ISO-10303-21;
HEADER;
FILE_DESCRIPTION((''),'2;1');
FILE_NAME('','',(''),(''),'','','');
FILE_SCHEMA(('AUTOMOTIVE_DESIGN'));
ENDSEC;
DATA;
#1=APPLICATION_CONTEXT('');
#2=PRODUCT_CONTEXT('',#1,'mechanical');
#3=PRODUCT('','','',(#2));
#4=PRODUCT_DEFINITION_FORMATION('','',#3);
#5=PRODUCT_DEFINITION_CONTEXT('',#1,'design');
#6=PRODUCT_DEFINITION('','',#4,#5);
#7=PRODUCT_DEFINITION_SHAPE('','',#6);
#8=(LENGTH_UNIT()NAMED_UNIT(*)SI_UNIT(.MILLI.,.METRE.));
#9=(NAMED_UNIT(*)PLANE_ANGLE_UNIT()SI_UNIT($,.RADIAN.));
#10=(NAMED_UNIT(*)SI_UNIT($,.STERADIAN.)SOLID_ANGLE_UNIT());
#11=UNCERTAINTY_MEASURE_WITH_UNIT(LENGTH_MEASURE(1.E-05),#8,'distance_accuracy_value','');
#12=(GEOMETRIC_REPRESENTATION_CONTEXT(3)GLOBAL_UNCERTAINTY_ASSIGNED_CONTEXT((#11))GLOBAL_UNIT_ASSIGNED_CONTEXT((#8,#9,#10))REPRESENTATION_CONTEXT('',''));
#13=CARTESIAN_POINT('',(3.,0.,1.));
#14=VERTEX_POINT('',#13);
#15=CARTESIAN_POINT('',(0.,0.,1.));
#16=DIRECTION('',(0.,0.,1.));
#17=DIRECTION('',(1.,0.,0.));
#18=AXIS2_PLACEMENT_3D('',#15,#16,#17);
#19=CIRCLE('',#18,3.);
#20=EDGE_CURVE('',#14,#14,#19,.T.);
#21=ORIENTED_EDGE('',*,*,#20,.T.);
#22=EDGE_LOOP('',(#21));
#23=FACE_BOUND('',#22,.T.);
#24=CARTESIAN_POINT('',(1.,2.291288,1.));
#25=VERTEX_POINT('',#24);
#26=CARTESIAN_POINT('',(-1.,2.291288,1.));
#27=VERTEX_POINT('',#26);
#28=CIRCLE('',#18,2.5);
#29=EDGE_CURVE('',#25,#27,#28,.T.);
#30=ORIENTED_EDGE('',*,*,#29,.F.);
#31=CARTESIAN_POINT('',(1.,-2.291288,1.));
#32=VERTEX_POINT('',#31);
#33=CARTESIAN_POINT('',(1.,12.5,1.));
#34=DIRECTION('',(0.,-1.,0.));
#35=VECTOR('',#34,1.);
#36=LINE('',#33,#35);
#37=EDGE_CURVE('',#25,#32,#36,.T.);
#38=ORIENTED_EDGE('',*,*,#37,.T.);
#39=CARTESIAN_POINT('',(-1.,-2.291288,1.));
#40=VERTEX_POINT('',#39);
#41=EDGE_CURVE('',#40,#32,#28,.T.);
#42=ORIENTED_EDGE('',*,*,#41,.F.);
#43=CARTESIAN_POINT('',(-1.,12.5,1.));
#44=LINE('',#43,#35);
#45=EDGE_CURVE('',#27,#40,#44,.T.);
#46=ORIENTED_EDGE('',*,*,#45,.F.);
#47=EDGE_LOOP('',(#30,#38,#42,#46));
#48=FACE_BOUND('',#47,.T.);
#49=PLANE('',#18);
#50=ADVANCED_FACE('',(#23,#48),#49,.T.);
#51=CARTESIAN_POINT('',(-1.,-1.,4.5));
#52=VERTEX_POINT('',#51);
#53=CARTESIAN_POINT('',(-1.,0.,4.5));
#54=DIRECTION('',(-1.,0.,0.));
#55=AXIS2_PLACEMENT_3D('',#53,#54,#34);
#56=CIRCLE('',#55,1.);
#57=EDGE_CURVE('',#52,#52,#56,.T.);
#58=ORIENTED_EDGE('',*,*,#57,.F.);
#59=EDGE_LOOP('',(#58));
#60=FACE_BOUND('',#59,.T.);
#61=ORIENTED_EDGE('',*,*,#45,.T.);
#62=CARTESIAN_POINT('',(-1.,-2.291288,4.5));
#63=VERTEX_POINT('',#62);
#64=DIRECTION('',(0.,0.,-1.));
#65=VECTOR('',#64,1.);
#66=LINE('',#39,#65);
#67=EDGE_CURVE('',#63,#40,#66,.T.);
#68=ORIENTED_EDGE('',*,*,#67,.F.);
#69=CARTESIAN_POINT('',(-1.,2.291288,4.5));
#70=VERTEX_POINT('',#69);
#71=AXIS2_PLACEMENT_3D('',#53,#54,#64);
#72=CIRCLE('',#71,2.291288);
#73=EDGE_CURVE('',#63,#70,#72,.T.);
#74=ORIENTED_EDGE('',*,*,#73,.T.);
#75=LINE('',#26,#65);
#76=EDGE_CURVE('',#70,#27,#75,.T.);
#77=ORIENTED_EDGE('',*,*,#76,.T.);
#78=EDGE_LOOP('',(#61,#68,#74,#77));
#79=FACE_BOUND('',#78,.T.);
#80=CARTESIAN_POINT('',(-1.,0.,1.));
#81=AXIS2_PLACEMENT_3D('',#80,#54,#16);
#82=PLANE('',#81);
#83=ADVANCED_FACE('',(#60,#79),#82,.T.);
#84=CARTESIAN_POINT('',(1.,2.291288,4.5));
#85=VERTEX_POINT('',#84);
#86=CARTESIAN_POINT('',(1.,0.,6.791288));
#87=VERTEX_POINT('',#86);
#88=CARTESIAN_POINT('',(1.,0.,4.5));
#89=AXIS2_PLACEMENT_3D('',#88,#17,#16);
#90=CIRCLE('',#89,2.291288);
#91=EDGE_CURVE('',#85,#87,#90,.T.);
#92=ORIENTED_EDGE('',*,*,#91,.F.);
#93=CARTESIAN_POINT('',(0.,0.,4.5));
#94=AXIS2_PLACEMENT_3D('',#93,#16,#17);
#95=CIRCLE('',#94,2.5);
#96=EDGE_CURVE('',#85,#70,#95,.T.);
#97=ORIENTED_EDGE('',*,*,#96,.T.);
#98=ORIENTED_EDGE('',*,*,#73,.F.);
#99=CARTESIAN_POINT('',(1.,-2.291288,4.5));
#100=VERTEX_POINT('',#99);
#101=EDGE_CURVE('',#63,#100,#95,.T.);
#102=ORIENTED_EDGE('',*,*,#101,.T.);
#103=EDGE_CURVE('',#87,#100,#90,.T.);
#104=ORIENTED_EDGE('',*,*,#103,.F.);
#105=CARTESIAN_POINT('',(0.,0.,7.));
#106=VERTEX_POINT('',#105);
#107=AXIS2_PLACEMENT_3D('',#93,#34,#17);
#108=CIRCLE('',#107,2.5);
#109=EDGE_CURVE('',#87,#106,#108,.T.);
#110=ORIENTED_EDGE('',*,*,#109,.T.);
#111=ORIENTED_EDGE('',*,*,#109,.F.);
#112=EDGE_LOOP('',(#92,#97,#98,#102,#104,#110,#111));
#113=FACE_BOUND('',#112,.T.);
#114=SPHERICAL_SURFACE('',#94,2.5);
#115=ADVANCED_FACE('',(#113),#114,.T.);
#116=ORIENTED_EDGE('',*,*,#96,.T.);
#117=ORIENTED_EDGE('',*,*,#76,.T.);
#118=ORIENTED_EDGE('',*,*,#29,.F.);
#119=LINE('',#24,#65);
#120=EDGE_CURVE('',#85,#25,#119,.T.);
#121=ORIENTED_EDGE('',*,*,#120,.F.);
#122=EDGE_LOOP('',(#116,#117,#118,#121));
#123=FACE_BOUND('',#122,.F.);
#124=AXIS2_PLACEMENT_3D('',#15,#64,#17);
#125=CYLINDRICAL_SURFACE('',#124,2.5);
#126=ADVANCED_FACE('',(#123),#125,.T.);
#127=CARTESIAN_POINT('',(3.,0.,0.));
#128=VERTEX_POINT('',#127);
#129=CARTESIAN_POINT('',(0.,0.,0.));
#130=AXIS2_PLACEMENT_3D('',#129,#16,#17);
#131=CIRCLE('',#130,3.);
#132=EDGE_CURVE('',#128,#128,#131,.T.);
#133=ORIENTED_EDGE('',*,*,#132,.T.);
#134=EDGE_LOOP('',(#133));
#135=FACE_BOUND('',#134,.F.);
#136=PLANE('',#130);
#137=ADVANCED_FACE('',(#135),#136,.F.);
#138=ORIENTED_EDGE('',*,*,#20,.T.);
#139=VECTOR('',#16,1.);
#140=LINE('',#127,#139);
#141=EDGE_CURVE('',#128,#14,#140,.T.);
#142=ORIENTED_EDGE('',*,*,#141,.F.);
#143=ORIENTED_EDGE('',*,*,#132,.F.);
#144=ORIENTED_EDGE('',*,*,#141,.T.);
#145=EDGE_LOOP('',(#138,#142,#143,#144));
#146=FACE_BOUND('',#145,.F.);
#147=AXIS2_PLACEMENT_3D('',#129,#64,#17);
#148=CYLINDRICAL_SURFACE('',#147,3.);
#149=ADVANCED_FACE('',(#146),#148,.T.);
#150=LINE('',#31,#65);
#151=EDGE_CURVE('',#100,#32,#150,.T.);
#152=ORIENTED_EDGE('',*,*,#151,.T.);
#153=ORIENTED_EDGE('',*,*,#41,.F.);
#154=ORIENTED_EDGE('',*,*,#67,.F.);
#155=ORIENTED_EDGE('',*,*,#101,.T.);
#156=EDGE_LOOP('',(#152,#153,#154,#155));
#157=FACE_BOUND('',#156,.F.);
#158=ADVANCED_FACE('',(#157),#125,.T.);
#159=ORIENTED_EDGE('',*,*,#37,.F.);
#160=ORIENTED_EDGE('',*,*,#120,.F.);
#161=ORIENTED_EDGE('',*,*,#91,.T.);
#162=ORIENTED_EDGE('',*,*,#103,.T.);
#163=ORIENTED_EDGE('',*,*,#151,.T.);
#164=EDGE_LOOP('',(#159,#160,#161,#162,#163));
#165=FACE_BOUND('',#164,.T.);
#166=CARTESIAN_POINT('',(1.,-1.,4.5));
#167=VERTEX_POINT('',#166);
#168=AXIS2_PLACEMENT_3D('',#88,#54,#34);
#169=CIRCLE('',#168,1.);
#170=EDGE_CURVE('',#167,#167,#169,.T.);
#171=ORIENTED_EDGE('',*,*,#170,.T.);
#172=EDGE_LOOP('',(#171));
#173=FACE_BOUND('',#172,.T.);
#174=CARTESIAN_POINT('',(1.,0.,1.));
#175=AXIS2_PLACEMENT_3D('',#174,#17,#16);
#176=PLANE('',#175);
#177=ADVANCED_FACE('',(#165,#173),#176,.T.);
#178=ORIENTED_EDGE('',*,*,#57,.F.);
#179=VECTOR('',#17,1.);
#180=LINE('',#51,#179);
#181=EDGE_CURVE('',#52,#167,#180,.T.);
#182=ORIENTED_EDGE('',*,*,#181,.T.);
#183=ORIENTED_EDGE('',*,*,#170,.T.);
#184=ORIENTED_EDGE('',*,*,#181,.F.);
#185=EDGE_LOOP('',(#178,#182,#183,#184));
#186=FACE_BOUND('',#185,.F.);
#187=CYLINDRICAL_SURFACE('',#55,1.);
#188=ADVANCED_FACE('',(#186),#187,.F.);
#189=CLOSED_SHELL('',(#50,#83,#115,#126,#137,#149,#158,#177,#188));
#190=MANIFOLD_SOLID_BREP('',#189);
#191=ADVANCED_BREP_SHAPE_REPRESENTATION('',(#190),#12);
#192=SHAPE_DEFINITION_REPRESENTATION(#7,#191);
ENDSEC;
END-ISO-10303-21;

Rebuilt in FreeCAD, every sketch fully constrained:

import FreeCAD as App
import Part
import Sketcher


def edges_at(feature, points):
    """Names of the edges that pass closest to the given points."""
    edges = feature.Shape.Edges
    near = lambda p: min(range(len(edges)), key=lambda i: edges[i].distToShape(Part.Vertex(*p))[0])
    return sorted({f"Edge{near(p) + 1}" for p in points})

doc = App.newDocument("Part")
params = doc.addObject("Spreadsheet::Sheet", "Params")
for row, (alias, value) in enumerate([
    ("sketch1_diameter", "6 mm"),
    ("pad1_length", "1 mm"),
    ("sketch2_diameter", "5 mm"),
    ("pad2_length", "6 mm"),
    ("fillet_radius", "2.5 mm"),
    ("pocket1_length", "25 mm"),
    ("sketch4_diameter", "2 mm"),
], start=1):
    params.set(f"A{row}", alias)
    params.set(f"B{row}", "=" + value)
    params.setAlias(f"B{row}", alias)

body = doc.addObject("PartDesign::Body", "Body")

# Sketch on XY plane
sketch1 = body.newObject("Sketcher::SketchObject", "Sketch")
sketch1.AttachmentSupport = (doc.getObject("XY_Plane"), [""])
sketch1.MapMode = "FlatFace"
sketch1.addGeometry(Part.Circle(App.Vector(0, 0, 0), App.Vector(0, 0, 1), 3), False)
sketch1.addConstraint(Sketcher.Constraint("Coincident", 0, 3, -1, 1))
sketch1.addConstraint(Sketcher.Constraint("Diameter", 0, 6.0))
sketch1.setExpression("Constraints[1]", "Params.sketch1_diameter")
pad1 = body.newObject("PartDesign::Pad", "Pad")
pad1.Profile = sketch1
pad1.setExpression("Length", "Params.pad1_length")

# Sketch on XY plane
sketch2 = body.newObject("Sketcher::SketchObject", "Sketch001")
sketch2.AttachmentSupport = (doc.getObject("XY_Plane"), [""])
sketch2.MapMode = "FlatFace"
sketch2.AttachmentOffset = App.Placement(App.Vector(0, 0, 1), App.Rotation())
sketch2.addGeometry(Part.Circle(App.Vector(0, 0, 0), App.Vector(0, 0, 1), 2.5), False)
sketch2.addConstraint(Sketcher.Constraint("Coincident", 0, 3, -1, 1))
sketch2.addConstraint(Sketcher.Constraint("Diameter", 0, 5.0))
sketch2.setExpression("Constraints[1]", "Params.sketch2_diameter")
pad2 = body.newObject("PartDesign::Pad", "Pad001")
pad2.Profile = sketch2
pad2.setExpression("Length", "Params.pad2_length")
doc.recompute()

fillet = body.newObject("PartDesign::Fillet", "Fillet")
fillet.Base = (pad2, edges_at(pad2, [(-2.5, 0, 7)]))
fillet.setExpression("Radius", "Params.fillet_radius")

# Sketch on XZ plane
sketch3 = body.newObject("Sketcher::SketchObject", "Sketch002")
sketch3.AttachmentSupport = (doc.getObject("XZ_Plane"), [""])
sketch3.MapMode = "FlatFace"
sketch3.addGeometry(Part.LineSegment(App.Vector(-3, 7.6, 0), App.Vector(-3, 1, 0)), False)
sketch3.addGeometry(Part.LineSegment(App.Vector(-3, 1, 0), App.Vector(-1, 1, 0)), False)
sketch3.addGeometry(Part.LineSegment(App.Vector(-1, 1, 0), App.Vector(-1, 7.6, 0)), False)
sketch3.addGeometry(Part.LineSegment(App.Vector(-1, 7.6, 0), App.Vector(-3, 7.6, 0)), False)
sketch3.addGeometry(Part.LineSegment(App.Vector(1, 7.6, 0), App.Vector(1, 1, 0)), False)
sketch3.addGeometry(Part.LineSegment(App.Vector(1, 1, 0), App.Vector(3.3, 1, 0)), False)
sketch3.addGeometry(Part.LineSegment(App.Vector(3.3, 1, 0), App.Vector(3.3, 7.6, 0)), False)
sketch3.addGeometry(Part.LineSegment(App.Vector(3.3, 7.6, 0), App.Vector(1, 7.6, 0)), False)
sketch3.addConstraint(Sketcher.Constraint("Coincident", 0, 2, 1, 1))
sketch3.addConstraint(Sketcher.Constraint("Coincident", 1, 2, 2, 1))
sketch3.addConstraint(Sketcher.Constraint("Coincident", 2, 2, 3, 1))
sketch3.addConstraint(Sketcher.Constraint("Coincident", 3, 2, 0, 1))
sketch3.addConstraint(Sketcher.Constraint("Coincident", 4, 2, 5, 1))
sketch3.addConstraint(Sketcher.Constraint("Coincident", 5, 2, 6, 1))
sketch3.addConstraint(Sketcher.Constraint("Coincident", 6, 2, 7, 1))
sketch3.addConstraint(Sketcher.Constraint("Coincident", 7, 2, 4, 1))
sketch3.addConstraint(Sketcher.Constraint("Vertical", 0))
sketch3.addConstraint(Sketcher.Constraint("Horizontal", 1))
sketch3.addConstraint(Sketcher.Constraint("Vertical", 2))
sketch3.addConstraint(Sketcher.Constraint("Horizontal", 3))
sketch3.addConstraint(Sketcher.Constraint("Vertical", 4))
sketch3.addConstraint(Sketcher.Constraint("Horizontal", 5))
sketch3.addConstraint(Sketcher.Constraint("Vertical", 6))
sketch3.addConstraint(Sketcher.Constraint("Horizontal", 7))
sketch3.addConstraint(Sketcher.Constraint("Symmetric", 1, 2, 4, 2, -2))
sketch3.addConstraint(Sketcher.Constraint("Horizontal", 3, 2, 6, 2))
sketch3.addConstraint(Sketcher.Constraint("DistanceY", -1, 1, 0, 2, 1.0))
sketch3.addConstraint(Sketcher.Constraint("DistanceX", 1, 2, -1, 1, 1.0))
sketch3.addConstraint(Sketcher.Constraint("DistanceX", 1, 1, 1, 2, 1.969891))
sketch3.addConstraint(Sketcher.Constraint("DistanceX", 5, 1, 5, 2, 2.270047))
sketch3.addConstraint(Sketcher.Constraint("DistanceY", 0, 2, 0, 1, 6.616144))
pocket1 = body.newObject("PartDesign::Pocket", "Pocket")
pocket1.Profile = sketch3
pocket1.setExpression("Length", "Params.pocket1_length")
pocket1.Midplane = True

# Sketch on YZ plane
sketch4 = body.newObject("Sketcher::SketchObject", "Sketch003")
sketch4.AttachmentSupport = (doc.getObject("YZ_Plane"), [""])
sketch4.MapMode = "FlatFace"
sketch4.AttachmentOffset = App.Placement(App.Vector(0, 0, -1), App.Rotation())
sketch4.addGeometry(Part.Circle(App.Vector(0, 4.5, 0), App.Vector(0, 0, 1), 1), False)
sketch4.addConstraint(Sketcher.Constraint("PointOnObject", 0, 3, -2))
sketch4.addConstraint(Sketcher.Constraint("Diameter", 0, 2.0))
sketch4.addConstraint(Sketcher.Constraint("DistanceY", -1, 1, 0, 3, 4.5))
sketch4.setExpression("Constraints[1]", "Params.sketch4_diameter")
pocket2 = body.newObject("PartDesign::Pocket", "Pocket001")
pocket2.Profile = sketch4
pocket2.Type = "ThroughAll"
pocket2.Reversed = True

doc.recompute()
